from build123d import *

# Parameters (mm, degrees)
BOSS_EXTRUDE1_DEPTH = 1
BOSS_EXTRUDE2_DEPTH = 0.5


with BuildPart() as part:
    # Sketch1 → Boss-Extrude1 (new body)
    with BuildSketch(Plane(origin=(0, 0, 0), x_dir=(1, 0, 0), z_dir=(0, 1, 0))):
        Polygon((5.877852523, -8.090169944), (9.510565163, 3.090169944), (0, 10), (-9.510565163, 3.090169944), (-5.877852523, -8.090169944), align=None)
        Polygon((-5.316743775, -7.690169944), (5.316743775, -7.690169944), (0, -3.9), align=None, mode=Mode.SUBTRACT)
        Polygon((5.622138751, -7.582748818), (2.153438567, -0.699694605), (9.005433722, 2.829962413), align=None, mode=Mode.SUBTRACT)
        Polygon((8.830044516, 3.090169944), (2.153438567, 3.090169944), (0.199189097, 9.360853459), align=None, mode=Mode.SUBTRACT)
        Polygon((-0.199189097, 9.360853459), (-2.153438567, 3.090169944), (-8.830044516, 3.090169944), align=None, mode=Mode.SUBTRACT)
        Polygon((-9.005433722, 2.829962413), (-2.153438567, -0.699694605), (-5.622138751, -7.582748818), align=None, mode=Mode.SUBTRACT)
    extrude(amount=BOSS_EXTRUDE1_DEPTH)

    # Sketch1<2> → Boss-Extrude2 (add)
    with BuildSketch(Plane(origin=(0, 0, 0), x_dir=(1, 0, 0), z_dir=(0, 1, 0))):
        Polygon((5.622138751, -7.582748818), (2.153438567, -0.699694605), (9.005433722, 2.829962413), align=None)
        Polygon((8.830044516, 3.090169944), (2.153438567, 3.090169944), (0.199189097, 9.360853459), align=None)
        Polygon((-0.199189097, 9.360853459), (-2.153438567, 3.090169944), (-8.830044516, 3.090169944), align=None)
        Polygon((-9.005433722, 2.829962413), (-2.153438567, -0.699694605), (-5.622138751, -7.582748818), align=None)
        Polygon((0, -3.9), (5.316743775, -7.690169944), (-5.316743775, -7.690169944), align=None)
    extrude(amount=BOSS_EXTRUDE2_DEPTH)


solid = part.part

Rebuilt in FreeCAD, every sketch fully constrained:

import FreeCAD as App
import Part
import Sketcher
from FreeCAD import Vector
Q = App.Units.Quantity

doc = App.newDocument("Part")
body = doc.addObject("PartDesign::Body", "Body")

sketch1 = doc.addObject("Sketcher::SketchObject", "Sketch")
body.addObject(sketch1)
sketch1.AttachmentSupport = (doc.XZ_Plane, [""])
sketch1.MapMode = "FlatFace"
sketch1.addGeometry([
    Part.LineSegment(Vector(5.877853, 8.09017, 0), Vector(9.510565, -3.09017, 0)),
    Part.LineSegment(Vector(9.510565, -3.09017, 0), Vector(0, -10, 0)),
    Part.LineSegment(Vector(0, -10, 0), Vector(-9.510565, -3.09017, 0)),
    Part.LineSegment(Vector(-9.510565, -3.09017, 0), Vector(-5.877853, 8.09017, 0)),
    Part.LineSegment(Vector(-5.877853, 8.09017, 0), Vector(5.877853, 8.09017, 0)),
    Part.LineSegment(Vector(-5.622139, 7.582749, 0), Vector(-9.005434, -2.829962, 0)),
    Part.LineSegment(Vector(-9.005434, -2.829962, 0), Vector(-2.153439, 0.699695, 0)),
    Part.LineSegment(Vector(-2.153439, 0.699695, 0), Vector(-5.622139, 7.582749, 0)),
    Part.LineSegment(Vector(5.316744, 7.69017, 0), Vector(-5.316744, 7.69017, 0)),
    Part.LineSegment(Vector(-5.316744, 7.69017, 0), Vector(0, 3.9, 0)),
    Part.LineSegment(Vector(0, 3.9, 0), Vector(5.316744, 7.69017, 0)),
    Part.LineSegment(Vector(9.005434, -2.829962, 0), Vector(5.622139, 7.582749, 0)),
    Part.LineSegment(Vector(5.622139, 7.582749, 0), Vector(2.153439, 0.699695, 0)),
    Part.LineSegment(Vector(2.153439, 0.699695, 0), Vector(9.005434, -2.829962, 0)),
    Part.LineSegment(Vector(-8.830045, -3.09017, 0), Vector(-0.199189, -9.360853, 0)),
    Part.LineSegment(Vector(-0.199189, -9.360853, 0), Vector(-2.153439, -3.09017, 0)),
    Part.LineSegment(Vector(-2.153439, -3.09017, 0), Vector(-8.830045, -3.09017, 0)),
    Part.LineSegment(Vector(0.199189, -9.360853, 0), Vector(8.830045, -3.09017, 0)),
    Part.LineSegment(Vector(8.830045, -3.09017, 0), Vector(2.153439, -3.09017, 0)),
    Part.LineSegment(Vector(2.153439, -3.09017, 0), Vector(0.199189, -9.360853, 0)),
], False)
sketch1.addConstraint([
    Sketcher.Constraint("Coincident", 0, 2, 1, 1),
    Sketcher.Constraint("Coincident", 1, 2, 2, 1),
    Sketcher.Constraint("Coincident", 2, 2, 3, 1),
    Sketcher.Constraint("Coincident", 3, 2, 4, 1),
    Sketcher.Constraint("Coincident", 4, 2, 0, 1),
    Sketcher.Constraint("Coincident", 5, 2, 6, 1),
    Sketcher.Constraint("Coincident", 6, 2, 7, 1),
    Sketcher.Constraint("Coincident", 7, 2, 5, 1),
    Sketcher.Constraint("Coincident", 8, 2, 9, 1),
    Sketcher.Constraint("Coincident", 9, 2, 10, 1),
    Sketcher.Constraint("Coincident", 10, 2, 8, 1),
    Sketcher.Constraint("Coincident", 11, 2, 12, 1),
    Sketcher.Constraint("Coincident", 12, 2, 13, 1),
    Sketcher.Constraint("Coincident", 13, 2, 11, 1),
    Sketcher.Constraint("Coincident", 14, 2, 15, 1),
    Sketcher.Constraint("Coincident", 15, 2, 16, 1),
    Sketcher.Constraint("Coincident", 16, 2, 14, 1),
    Sketcher.Constraint("Coincident", 17, 2, 18, 1),
    Sketcher.Constraint("Coincident", 18, 2, 19, 1),
    Sketcher.Constraint("Coincident", 19, 2, 17, 1),
    Sketcher.Constraint("Horizontal", 4),
    Sketcher.Constraint("Horizontal", 8),
    Sketcher.Constraint("Horizontal", 16),
    Sketcher.Constraint("Horizontal", 18),
    Sketcher.Constraint("Symmetric", 0, 2, 2, 2, -2),
    Sketcher.Constraint("Symmetric", 7, 2, 11, 2, -2),
    Sketcher.Constraint("Symmetric", 6, 2, 12, 2, -2),
    Sketcher.Constraint("Symmetric", 5, 2, 13, 2, -2),
    Sketcher.Constraint("Symmetric", 16, 2, 17, 2, -2),
    Sketcher.Constraint("Symmetric", 14, 2, 19, 2, -2),
    Sketcher.Constraint("PointOnObject", 1, 2, -2),
    Sketcher.Constraint("PointOnObject", 9, 2, -2),
    Sketcher.Constraint("Parallel", 3, 5),
    Sketcher.Constraint("Parallel", 0, 11),
    Sketcher.Constraint("Parallel", 2, 14),
    Sketcher.Constraint("Horizontal", 2, 2, 15, 2),
    Sketcher.Constraint("Vertical", 6, 2, 15, 2),
    Sketcher.Constraint("Vertical", 12, 2, 18, 2),
    Sketcher.Constraint("Equal", 0, 1),
    Sketcher.Constraint("Equal", 6, 7),
    Sketcher.Constraint("Equal", 9, 10),
    Sketcher.Constraint("Angle", 0, Q("-72 deg")),
    Sketcher.Constraint("Angle", 1, Q("-144 deg")),
    Sketcher.Constraint("DistanceY", 1, 2, -1, 1, Q("10 mm")),
    Sketcher.Constraint("DistanceY", -1, 1, 9, 2, Q("3.9 mm")),
    Sketcher.Constraint("DistanceY", 8, 2, 3, 2, Q("0.4 mm")),
    Sketcher.Constraint("DistanceX", 5, 2, 0, 2, Q("18.515999 mm")),
    Sketcher.Constraint("DistanceX", 7, 2, 6, 2, Q("3.4687 mm")),
    Sketcher.Constraint("Distance", 6, Q("7.707679 mm")),
    Sketcher.Constraint("DistanceX", 4, 1, 4, 2, Q("11.755705 mm")),
    Sketcher.Constraint("DistanceX", 8, 2, 8, 1, Q("10.633488 mm")),
    Sketcher.Constraint("DistanceX", 16, 2, 16, 1, Q("6.676606 mm")),
    Sketcher.Constraint("DistanceY", -1, 1, 7, 2, Q("7.582749 mm")),
    Sketcher.Constraint("DistanceX", 14, 2, -1, 1, Q("0.199189 mm")),
])
pad1 = doc.addObject("PartDesign::Pad", "Pad")
body.addObject(pad1)
pad1.Profile = sketch1
pad1.Length = 1
pad1.Reversed = True

sketch2 = doc.addObject("Sketcher::SketchObject", "Sketch001")
body.addObject(sketch2)
sketch2.AttachmentSupport = (doc.XZ_Plane, [""])
sketch2.MapMode = "FlatFace"
sketch2.addGeometry([
    Part.LineSegment(Vector(2.153439, 0.699695, 0), Vector(5.622139, 7.582749, 0)),
    Part.LineSegment(Vector(5.622139, 7.582749, 0), Vector(9.005434, -2.829962, 0)),
    Part.LineSegment(Vector(9.005434, -2.829962, 0), Vector(2.153439, 0.699695, 0)),
    Part.LineSegment(Vector(2.153439, -3.09017, 0), Vector(8.830045, -3.09017, 0)),
    Part.LineSegment(Vector(8.830045, -3.09017, 0), Vector(0.199189, -9.360853, 0)),
    Part.LineSegment(Vector(0.199189, -9.360853, 0), Vector(2.153439, -3.09017, 0)),
    Part.LineSegment(Vector(-2.153439, -3.09017, 0), Vector(-0.199189, -9.360853, 0)),
    Part.LineSegment(Vector(-0.199189, -9.360853, 0), Vector(-8.830045, -3.09017, 0)),
    Part.LineSegment(Vector(-8.830045, -3.09017, 0), Vector(-2.153439, -3.09017, 0)),
    Part.LineSegment(Vector(-2.153439, 0.699695, 0), Vector(-9.005434, -2.829962, 0)),
    Part.LineSegment(Vector(-9.005434, -2.829962, 0), Vector(-5.622139, 7.582749, 0)),
    Part.LineSegment(Vector(-5.622139, 7.582749, 0), Vector(-2.153439, 0.699695, 0)),
    Part.LineSegment(Vector(5.316744, 7.69017, 0), Vector(0, 3.9, 0)),
    Part.LineSegment(Vector(0, 3.9, 0), Vector(-5.316744, 7.69017, 0)),
    Part.LineSegment(Vector(-5.316744, 7.69017, 0), Vector(5.316744, 7.69017, 0)),
], False)
sketch2.addConstraint([
    Sketcher.Constraint("Coincident", 0, 2, 1, 1),
    Sketcher.Constraint("Coincident", 1, 2, 2, 1),
    Sketcher.Constraint("Coincident", 2, 2, 0, 1),
    Sketcher.Constraint("Coincident", 3, 2, 4, 1),
    Sketcher.Constraint("Coincident", 4, 2, 5, 1),
    Sketcher.Constraint("Coincident", 5, 2, 3, 1),
    Sketcher.Constraint("Coincident", 6, 2, 7, 1),
    Sketcher.Constraint("Coincident", 7, 2, 8, 1),
    Sketcher.Constraint("Coincident", 8, 2, 6, 1),
    Sketcher.Constraint("Coincident", 9, 2, 10, 1),
    Sketcher.Constraint("Coincident", 10, 2, 11, 1),
    Sketcher.Constraint("Coincident", 11, 2, 9, 1),
    Sketcher.Constraint("Coincident", 12, 2, 13, 1),
    Sketcher.Constraint("Coincident", 13, 2, 14, 1),
    Sketcher.Constraint("Coincident", 14, 2, 12, 1),
    Sketcher.Constraint("Horizontal", 3),
    Sketcher.Constraint("Horizontal", 8),
    Sketcher.Constraint("Horizontal", 14),
    Sketcher.Constraint("Symmetric", 4, 2, 6, 2, -2),
    Sketcher.Constraint("Symmetric", 3, 2, 7, 2, -2),
    Sketcher.Constraint("Symmetric", 1, 2, 9, 2, -2),
    Sketcher.Constraint("Symmetric", 0, 2, 10, 2, -2),
    Sketcher.Constraint("Symmetric", 2, 2, 11, 2, -2),
    Sketcher.Constraint("PointOnObject", 12, 2, -2),
    Sketcher.Constraint("Vertical", 2, 2, 5, 2),
    Sketcher.Constraint("Vertical", 8, 2, 11, 2),
    Sketcher.Constraint("Equal", 0, 2),
    Sketcher.Constraint("Equal", 12, 13),
    Sketcher.Constraint("Angle", 1, Q("-72 deg")),
    Sketcher.Constraint("Angle", 4, Q("-144 deg")),
    Sketcher.Constraint("DistanceY", -1, 1, 12, 2, Q("3.9 mm")),
    Sketcher.Constraint("DistanceX", 2, 2, 0, 2, Q("3.4687 mm")),
    Sketcher.Constraint("Distance", 0, Q("7.707679 mm")),
    Sketcher.Constraint("DistanceX", 3, 1, 3, 2, Q("6.676606 mm")),
    Sketcher.Constraint("DistanceX", 14, 1, 14, 2, Q("10.633488 mm")),
    Sketcher.Constraint("DistanceX", -1, 1, 0, 2, Q("5.622139 mm")),
    Sketcher.Constraint("DistanceY", -1, 1, 0, 2, Q("7.582749 mm")),
    Sketcher.Constraint("DistanceY", 3, 2, -1, 1, Q("3.09017 mm")),
    Sketcher.Constraint("DistanceX", -1, 1, 4, 2, Q("0.199189 mm")),
    Sketcher.Constraint("DistanceY", -1, 1, 13, 2, Q("7.69017 mm")),
])
pad2 = doc.addObject("PartDesign::Pad", "Pad001")
body.addObject(pad2)
pad2.Profile = sketch2
pad2.Length = 0.5
pad2.Reversed = True

doc.recompute()
